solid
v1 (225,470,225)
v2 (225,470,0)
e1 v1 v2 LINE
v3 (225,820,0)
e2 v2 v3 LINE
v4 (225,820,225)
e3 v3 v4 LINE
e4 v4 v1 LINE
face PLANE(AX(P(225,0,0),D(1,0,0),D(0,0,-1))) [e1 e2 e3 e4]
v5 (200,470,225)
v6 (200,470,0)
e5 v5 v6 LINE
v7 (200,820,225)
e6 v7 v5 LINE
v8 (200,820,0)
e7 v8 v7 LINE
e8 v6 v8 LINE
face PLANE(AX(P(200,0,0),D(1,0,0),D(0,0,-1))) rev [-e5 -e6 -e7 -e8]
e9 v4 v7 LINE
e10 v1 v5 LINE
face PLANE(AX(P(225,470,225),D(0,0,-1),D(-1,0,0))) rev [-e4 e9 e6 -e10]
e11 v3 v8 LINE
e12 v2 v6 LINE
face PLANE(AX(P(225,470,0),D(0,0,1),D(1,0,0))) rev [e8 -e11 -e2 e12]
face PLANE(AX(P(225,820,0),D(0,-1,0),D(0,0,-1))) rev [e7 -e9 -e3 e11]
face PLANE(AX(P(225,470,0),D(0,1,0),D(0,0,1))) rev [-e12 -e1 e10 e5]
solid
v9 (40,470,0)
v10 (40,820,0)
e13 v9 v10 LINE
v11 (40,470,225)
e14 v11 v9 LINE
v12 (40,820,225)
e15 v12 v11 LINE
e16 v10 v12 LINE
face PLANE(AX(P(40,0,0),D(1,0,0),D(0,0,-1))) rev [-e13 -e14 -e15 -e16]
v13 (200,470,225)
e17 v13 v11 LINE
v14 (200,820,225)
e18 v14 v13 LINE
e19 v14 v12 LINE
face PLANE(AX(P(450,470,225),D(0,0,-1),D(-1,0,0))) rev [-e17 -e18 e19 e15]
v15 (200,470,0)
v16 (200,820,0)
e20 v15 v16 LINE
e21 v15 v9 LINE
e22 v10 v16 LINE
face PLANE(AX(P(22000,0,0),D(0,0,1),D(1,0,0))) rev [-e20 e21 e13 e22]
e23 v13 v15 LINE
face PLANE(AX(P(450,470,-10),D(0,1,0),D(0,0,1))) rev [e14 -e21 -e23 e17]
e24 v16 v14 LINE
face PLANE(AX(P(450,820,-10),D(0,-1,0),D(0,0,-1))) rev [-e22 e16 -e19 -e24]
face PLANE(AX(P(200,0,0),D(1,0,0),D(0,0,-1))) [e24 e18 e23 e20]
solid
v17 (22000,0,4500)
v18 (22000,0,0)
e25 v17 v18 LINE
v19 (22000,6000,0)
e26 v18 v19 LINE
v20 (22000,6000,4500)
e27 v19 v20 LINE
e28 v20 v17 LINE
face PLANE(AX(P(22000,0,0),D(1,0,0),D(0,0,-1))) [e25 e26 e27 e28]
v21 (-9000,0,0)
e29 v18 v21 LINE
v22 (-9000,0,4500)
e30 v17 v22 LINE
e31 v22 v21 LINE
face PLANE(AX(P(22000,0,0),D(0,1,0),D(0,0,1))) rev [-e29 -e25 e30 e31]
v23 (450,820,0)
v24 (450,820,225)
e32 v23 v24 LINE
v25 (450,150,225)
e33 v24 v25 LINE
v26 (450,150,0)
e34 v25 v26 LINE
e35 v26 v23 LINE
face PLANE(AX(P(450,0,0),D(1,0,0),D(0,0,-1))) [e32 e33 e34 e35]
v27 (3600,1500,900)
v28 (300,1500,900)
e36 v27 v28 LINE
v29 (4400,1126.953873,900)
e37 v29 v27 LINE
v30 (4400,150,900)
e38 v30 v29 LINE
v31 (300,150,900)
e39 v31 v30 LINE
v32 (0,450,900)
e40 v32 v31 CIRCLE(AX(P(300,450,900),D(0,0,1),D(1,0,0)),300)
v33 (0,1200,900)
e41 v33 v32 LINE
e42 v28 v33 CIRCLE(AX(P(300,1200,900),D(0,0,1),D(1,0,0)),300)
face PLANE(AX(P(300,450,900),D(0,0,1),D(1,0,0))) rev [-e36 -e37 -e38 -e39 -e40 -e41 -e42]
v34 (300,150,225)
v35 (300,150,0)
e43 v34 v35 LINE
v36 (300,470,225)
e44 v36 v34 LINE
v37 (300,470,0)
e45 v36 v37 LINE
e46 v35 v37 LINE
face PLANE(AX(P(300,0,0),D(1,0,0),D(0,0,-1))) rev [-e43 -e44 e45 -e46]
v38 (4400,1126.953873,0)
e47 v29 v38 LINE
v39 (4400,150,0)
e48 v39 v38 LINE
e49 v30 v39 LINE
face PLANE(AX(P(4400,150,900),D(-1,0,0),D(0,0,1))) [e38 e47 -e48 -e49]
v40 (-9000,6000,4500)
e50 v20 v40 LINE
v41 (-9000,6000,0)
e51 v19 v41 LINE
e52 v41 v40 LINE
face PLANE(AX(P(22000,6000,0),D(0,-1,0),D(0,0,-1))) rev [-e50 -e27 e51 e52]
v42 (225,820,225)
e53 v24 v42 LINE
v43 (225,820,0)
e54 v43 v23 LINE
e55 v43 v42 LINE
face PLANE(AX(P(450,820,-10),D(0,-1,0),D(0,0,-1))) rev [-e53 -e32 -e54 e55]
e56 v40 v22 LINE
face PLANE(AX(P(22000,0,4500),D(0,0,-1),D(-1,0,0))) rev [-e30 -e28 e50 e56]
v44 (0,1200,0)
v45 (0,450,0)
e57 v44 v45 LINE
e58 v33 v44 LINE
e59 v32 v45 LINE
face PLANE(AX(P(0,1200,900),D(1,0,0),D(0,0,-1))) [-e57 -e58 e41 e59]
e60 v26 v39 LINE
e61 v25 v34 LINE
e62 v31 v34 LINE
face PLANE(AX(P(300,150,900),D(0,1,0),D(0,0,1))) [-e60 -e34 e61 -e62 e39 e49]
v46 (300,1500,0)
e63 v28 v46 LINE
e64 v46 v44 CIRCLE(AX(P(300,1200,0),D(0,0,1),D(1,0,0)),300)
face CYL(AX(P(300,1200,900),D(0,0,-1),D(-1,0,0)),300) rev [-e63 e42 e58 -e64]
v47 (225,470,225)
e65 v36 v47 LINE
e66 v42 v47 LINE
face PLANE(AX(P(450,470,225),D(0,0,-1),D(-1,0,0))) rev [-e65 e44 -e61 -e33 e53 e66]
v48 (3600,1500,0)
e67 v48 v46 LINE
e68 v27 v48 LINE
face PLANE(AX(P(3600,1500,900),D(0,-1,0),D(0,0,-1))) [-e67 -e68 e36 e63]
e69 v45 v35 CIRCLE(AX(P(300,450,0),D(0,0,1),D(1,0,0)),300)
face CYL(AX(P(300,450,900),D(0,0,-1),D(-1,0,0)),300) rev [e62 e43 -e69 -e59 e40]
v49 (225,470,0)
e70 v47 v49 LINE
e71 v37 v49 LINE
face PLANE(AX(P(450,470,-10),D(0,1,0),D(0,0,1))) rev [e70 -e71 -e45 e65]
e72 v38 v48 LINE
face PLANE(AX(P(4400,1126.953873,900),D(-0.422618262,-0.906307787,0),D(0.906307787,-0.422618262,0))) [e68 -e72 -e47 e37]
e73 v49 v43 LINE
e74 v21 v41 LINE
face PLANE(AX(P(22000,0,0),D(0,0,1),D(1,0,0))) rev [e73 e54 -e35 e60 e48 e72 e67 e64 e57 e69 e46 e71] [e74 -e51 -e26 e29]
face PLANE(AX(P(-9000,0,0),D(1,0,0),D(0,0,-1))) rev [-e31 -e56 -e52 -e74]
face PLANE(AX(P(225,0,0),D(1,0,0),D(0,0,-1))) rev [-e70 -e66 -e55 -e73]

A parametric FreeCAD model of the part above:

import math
import FreeCAD as App
import Part
import Sketcher
Q = App.Units.Quantity


def add_polygon(sketch, points):
    """Adds a closed chain of lines whose ends are joined by coincident constraints."""
    first, n = sketch.GeometryCount, len(points)
    for a, b in zip(points, points[1:] + points[:1]):
        sketch.addGeometry(Part.LineSegment(App.Vector(*a, 0), App.Vector(*b, 0)), False)
    for i in range(n):
        sketch.addConstraint(Sketcher.Constraint("Coincident", first + i, 2, first + (i + 1) % n, 1))

doc = App.newDocument("Part")
body = doc.addObject("PartDesign::Body", "Body")

# Sketch on XY plane
sketch1 = body.newObject("Sketcher::SketchObject", "Sketch")
sketch1.AttachmentSupport = (doc.getObject("XY_Plane"), [""])
sketch1.MapMode = "FlatFace"
sketch1.addGeometry(Part.LineSegment(App.Vector(300, 150, 0), App.Vector(4400, 150, 0)), False)
sketch1.addGeometry(Part.LineSegment(App.Vector(4400, 150, 0), App.Vector(4400, 1126.953873, 0)), False)
sketch1.addGeometry(Part.LineSegment(App.Vector(4400, 1126.953873, 0), App.Vector(3600, 1500, 0)), False)
sketch1.addGeometry(Part.LineSegment(App.Vector(3600, 1500, 0), App.Vector(300, 1500, 0)), False)
sketch1.addGeometry(Part.ArcOfCircle(Part.Circle(App.Vector(300, 1200, 0), App.Vector(0, 0, 1), 300), math.radians(90), math.radians(180)), False)
sketch1.addGeometry(Part.LineSegment(App.Vector(0, 1200, 0), App.Vector(0, 450, 0)), False)
sketch1.addGeometry(Part.ArcOfCircle(Part.Circle(App.Vector(300, 450, 0), App.Vector(0, 0, 1), 300), math.radians(180), math.radians(270)), False)
sketch1.addConstraint(Sketcher.Constraint("Coincident", 0, 2, 1, 1))
sketch1.addConstraint(Sketcher.Constraint("Coincident", 1, 2, 2, 1))
sketch1.addConstraint(Sketcher.Constraint("Coincident", 2, 2, 3, 1))
sketch1.addConstraint(Sketcher.Constraint("Tangent", 3, 2, 4, 1))
sketch1.addConstraint(Sketcher.Constraint("Tangent", 4, 2, 5, 1))
sketch1.addConstraint(Sketcher.Constraint("Tangent", 5, 2, 6, 1))
sketch1.addConstraint(Sketcher.Constraint("Tangent", 6, 2, 0, 1))
sketch1.addConstraint(Sketcher.Constraint("Horizontal", 0))
sketch1.addConstraint(Sketcher.Constraint("Vertical", 1))
sketch1.addConstraint(Sketcher.Constraint("Horizontal", 3))
sketch1.addConstraint(Sketcher.Constraint("Vertical", 5))
sketch1.addConstraint(Sketcher.Constraint("Equal", 4, 6))
sketch1.addConstraint(Sketcher.Constraint("PointOnObject", 4, 2, -2))
sketch1.addConstraint(Sketcher.Constraint("Radius", 4, Q("300 mm")))
sketch1.addConstraint(Sketcher.Constraint("DistanceX", 0, 1, 0, 2, Q("4100 mm")))
sketch1.addConstraint(Sketcher.Constraint("DistanceX", 3, 2, 3, 1, Q("3300 mm")))
sketch1.addConstraint(Sketcher.Constraint("DistanceY", 5, 2, 5, 1, Q("750 mm")))
sketch1.addConstraint(Sketcher.Constraint("Angle", 2, Q("155 deg")))
sketch1.addConstraint(Sketcher.Constraint("DistanceY", -1, 1, 4, 3, Q("1200 mm")))
pad1 = body.newObject("PartDesign::Pad", "Pad")
pad1.Profile = sketch1
pad1.Length = 900
body2 = doc.addObject("PartDesign::Body", "Body001")

# Sketch on YZ plane
sketch2 = body2.newObject("Sketcher::SketchObject", "Sketch001")
sketch2.AttachmentSupport = (doc.getObject("YZ_Plane001"), [""])
sketch2.MapMode = "FlatFace"
sketch2.AttachmentOffset = App.Placement(App.Vector(0, 0, 40), App.Rotation())
add_polygon(sketch2, [(820, 225), (470, 225), (470, -10), (820, -10)])  # lines 0-3
sketch2.addConstraint(Sketcher.Constraint("Horizontal", 0))
sketch2.addConstraint(Sketcher.Constraint("Vertical", 1))
sketch2.addConstraint(Sketcher.Constraint("Horizontal", 2))
sketch2.addConstraint(Sketcher.Constraint("Vertical", 3))
sketch2.addConstraint(Sketcher.Constraint("DistanceX", 0, 2, 0, 1, Q("350 mm")))
sketch2.addConstraint(Sketcher.Constraint("DistanceY", 1, 2, 1, 1, Q("235 mm")))
sketch2.addConstraint(Sketcher.Constraint("DistanceX", -1, 1, 0, 2, Q("470 mm")))
sketch2.addConstraint(Sketcher.Constraint("DistanceY", -1, 1, 0, 2, Q("225 mm")))
pad2 = body2.newObject("PartDesign::Pad", "Pad001")
pad2.Profile = sketch2
pad2.Length = 410
doc.recompute()

boolean = body.newObject("PartDesign::Boolean", "Boolean")
boolean.Type = "Cut"
boolean.addObjects([body2])
body3 = doc.addObject("PartDesign::Body", "Body002")

# Sketch on YZ plane
sketch3 = body3.newObject("Sketcher::SketchObject", "Sketch002")
sketch3.AttachmentSupport = (doc.getObject("YZ_Plane002"), [""])
sketch3.MapMode = "FlatFace"
sketch3.AttachmentOffset = App.Placement(App.Vector(0, 0, 300), App.Rotation())
add_polygon(sketch3, [(475, 225), (100, 225), (100, -10), (475, -10)])  # lines 0-3
sketch3.addConstraint(Sketcher.Constraint("Horizontal", 0))
sketch3.addConstraint(Sketcher.Constraint("Vertical", 1))
sketch3.addConstraint(Sketcher.Constraint("Horizontal", 2))
sketch3.addConstraint(Sketcher.Constraint("Vertical", 3))
sketch3.addConstraint(Sketcher.Constraint("DistanceX", 0, 2, 0, 1, Q("375 mm")))
sketch3.addConstraint(Sketcher.Constraint("DistanceY", 1, 2, 1, 1, Q("235 mm")))
sketch3.addConstraint(Sketcher.Constraint("DistanceX", -1, 1, 0, 2, Q("100 mm")))
sketch3.addConstraint(Sketcher.Constraint("DistanceY", -1, 1, 0, 2, Q("225 mm")))
pad3 = body3.newObject("PartDesign::Pad", "Pad002")
pad3.Profile = sketch3
pad3.Length = 150
doc.recompute()

boolean2 = body.newObject("PartDesign::Boolean", "Boolean001")
boolean2.Type = "Cut"
boolean2.addObjects([body3])
body4 = doc.addObject("PartDesign::Body", "Body003")

# Sketch on YZ plane
sketch4 = body4.newObject("Sketcher::SketchObject", "Sketch003")
sketch4.AttachmentSupport = (doc.getObject("YZ_Plane003"), [""])
sketch4.MapMode = "FlatFace"
sketch4.AttachmentOffset = App.Placement(App.Vector(0, 0, 200), App.Rotation())
add_polygon(sketch4, [(820, 225), (470, 225), (470, 0), (820, 0)])  # lines 0-3
sketch4.addConstraint(Sketcher.Constraint("Horizontal", 0))
sketch4.addConstraint(Sketcher.Constraint("Vertical", 1))
sketch4.addConstraint(Sketcher.Constraint("Horizontal", 2))
sketch4.addConstraint(Sketcher.Constraint("Vertical", 3))
sketch4.addConstraint(Sketcher.Constraint("PointOnObject", 1, 2, -1))
sketch4.addConstraint(Sketcher.Constraint("DistanceX", 0, 2, 0, 1, Q("350 mm")))
sketch4.addConstraint(Sketcher.Constraint("DistanceY", 1, 2, 1, 1, Q("225 mm")))
sketch4.addConstraint(Sketcher.Constraint("DistanceX", -1, 1, 0, 2, Q("470 mm")))
pad4 = body4.newObject("PartDesign::Pad", "Pad003")
pad4.Profile = sketch4
pad4.Length = 25
body5 = doc.addObject("PartDesign::Body", "Body004")

# Sketch on YZ plane
sketch5 = body5.newObject("Sketcher::SketchObject", "Sketch004")
sketch5.AttachmentSupport = (doc.getObject("YZ_Plane004"), [""])
sketch5.MapMode = "FlatFace"
sketch5.AttachmentOffset = App.Placement(App.Vector(0, 0, 200), App.Rotation())
add_polygon(sketch5, [(820, 225), (470, 225), (470, 0), (820, 0)])  # lines 0-3
sketch5.addConstraint(Sketcher.Constraint("Horizontal", 0))
sketch5.addConstraint(Sketcher.Constraint("Vertical", 1))
sketch5.addConstraint(Sketcher.Constraint("Horizontal", 2))
sketch5.addConstraint(Sketcher.Constraint("Vertical", 3))
sketch5.addConstraint(Sketcher.Constraint("PointOnObject", 1, 2, -1))
sketch5.addConstraint(Sketcher.Constraint("DistanceX", 0, 2, 0, 1, Q("350 mm")))
sketch5.addConstraint(Sketcher.Constraint("DistanceY", 1, 2, 1, 1, Q("225 mm")))
sketch5.addConstraint(Sketcher.Constraint("DistanceX", -1, 1, 0, 2, Q("470 mm")))
pad5 = body5.newObject("PartDesign::Pad", "Pad004")
pad5.Profile = sketch5
pad5.Length = 25
body6 = doc.addObject("PartDesign::Body", "Body005")
body6.AllowCompound = True

# Sketch on YZ plane
sketch6 = body6.newObject("Sketcher::SketchObject", "Sketch005")
sketch6.AttachmentSupport = (doc.getObject("YZ_Plane005"), [""])
sketch6.MapMode = "FlatFace"
sketch6.AttachmentOffset = App.Placement(App.Vector(0, 0, -9000), App.Rotation())
add_polygon(sketch6, [(6000, 4500), (0, 4500), (0, 0), (6000, 0)])  # lines 0-3
sketch6.addConstraint(Sketcher.Constraint("Horizontal", 0))
sketch6.addConstraint(Sketcher.Constraint("Vertical", 1))
sketch6.addConstraint(Sketcher.Constraint("Horizontal", 2))
sketch6.addConstraint(Sketcher.Constraint("Vertical", 3))
sketch6.addConstraint(Sketcher.Constraint("Coincident", 1, 2, -1, 1))
sketch6.addConstraint(Sketcher.Constraint("DistanceX", 0, 2, 0, 1, Q("6000 mm")))
sketch6.addConstraint(Sketcher.Constraint("DistanceY", 1, 2, 1, 1, Q("4500 mm")))
pad6 = body6.newObject("PartDesign::Pad", "Pad005")
pad6.Profile = sketch6
pad6.Length = 31000
doc.recompute()

boolean3 = body6.newObject("PartDesign::Boolean", "Boolean002")
boolean3.Type = "Cut"
boolean3.addObjects([body])
doc.recompute()

boolean4 = body6.newObject("PartDesign::Boolean", "Boolean003")
boolean4.Type = "Cut"
boolean4.addObjects([body5])

doc.recompute()
